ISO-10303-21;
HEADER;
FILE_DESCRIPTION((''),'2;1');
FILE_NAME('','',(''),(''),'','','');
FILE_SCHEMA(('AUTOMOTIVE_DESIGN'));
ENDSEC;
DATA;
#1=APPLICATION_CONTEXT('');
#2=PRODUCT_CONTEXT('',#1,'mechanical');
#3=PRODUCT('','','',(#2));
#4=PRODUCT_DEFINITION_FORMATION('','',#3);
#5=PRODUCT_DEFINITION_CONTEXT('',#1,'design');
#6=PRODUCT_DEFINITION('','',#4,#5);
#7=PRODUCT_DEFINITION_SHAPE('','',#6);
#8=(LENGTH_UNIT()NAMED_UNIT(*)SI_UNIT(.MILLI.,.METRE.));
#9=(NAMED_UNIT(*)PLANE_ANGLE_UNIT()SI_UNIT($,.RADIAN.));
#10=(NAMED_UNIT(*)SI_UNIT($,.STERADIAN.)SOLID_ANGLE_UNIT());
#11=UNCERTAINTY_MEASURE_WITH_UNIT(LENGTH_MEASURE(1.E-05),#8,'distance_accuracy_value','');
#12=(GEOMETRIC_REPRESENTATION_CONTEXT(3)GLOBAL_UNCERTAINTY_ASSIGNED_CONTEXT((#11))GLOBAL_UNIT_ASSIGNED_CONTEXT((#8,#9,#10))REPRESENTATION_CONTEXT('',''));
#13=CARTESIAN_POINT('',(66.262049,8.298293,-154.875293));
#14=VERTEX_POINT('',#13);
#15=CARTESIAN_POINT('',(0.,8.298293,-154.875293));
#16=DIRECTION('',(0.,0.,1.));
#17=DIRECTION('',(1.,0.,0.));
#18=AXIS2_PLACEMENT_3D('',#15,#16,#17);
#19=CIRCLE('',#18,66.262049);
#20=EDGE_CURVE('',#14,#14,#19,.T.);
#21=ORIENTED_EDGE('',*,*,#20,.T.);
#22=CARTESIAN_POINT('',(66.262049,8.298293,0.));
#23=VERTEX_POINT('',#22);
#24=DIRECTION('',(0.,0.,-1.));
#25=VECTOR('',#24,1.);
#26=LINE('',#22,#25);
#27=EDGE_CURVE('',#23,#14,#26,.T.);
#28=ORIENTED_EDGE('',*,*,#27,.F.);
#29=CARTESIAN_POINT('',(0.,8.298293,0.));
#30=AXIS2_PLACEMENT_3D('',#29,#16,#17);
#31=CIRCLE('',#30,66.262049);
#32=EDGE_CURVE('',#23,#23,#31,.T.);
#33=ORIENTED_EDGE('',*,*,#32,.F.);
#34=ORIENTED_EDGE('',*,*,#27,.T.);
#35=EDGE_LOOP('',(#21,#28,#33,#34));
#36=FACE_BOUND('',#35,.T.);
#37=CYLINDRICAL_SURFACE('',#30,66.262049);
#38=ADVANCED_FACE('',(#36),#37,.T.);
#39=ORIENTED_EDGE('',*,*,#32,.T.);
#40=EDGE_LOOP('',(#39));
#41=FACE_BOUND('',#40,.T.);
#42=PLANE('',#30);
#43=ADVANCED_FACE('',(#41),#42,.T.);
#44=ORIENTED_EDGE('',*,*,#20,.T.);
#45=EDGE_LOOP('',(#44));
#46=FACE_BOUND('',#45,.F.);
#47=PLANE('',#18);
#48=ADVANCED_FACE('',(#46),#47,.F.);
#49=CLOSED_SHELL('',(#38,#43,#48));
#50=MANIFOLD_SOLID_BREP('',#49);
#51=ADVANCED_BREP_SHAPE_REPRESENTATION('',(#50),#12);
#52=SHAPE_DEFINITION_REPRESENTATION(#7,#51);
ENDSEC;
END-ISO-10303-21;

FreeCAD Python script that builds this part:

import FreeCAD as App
import Part
import Sketcher
Q = App.Units.Quantity

doc = App.newDocument("Part")
params = doc.addObject("Spreadsheet::Sheet", "Params")
for row, (alias, value) in enumerate([
    ("pad1_length", "154.875293 mm"),
], start=1):
    params.set(f"A{row}", alias)
    params.set(f"B{row}", "=" + value)
    params.setAlias(f"B{row}", alias)

body = doc.addObject("PartDesign::Body", "Body")

# Sketch on XY plane
sketch1 = body.newObject("Sketcher::SketchObject", "Sketch")
sketch1.AttachmentSupport = (doc.getObject("XY_Plane"), [""])
sketch1.MapMode = "FlatFace"
sketch1.addGeometry(Part.Circle(App.Vector(0, 8, 0), App.Vector(0, 0, 1), 66), False)
sketch1.addConstraint([
    Sketcher.Constraint("PointOnObject", 0, 3, -2),
    Sketcher.Constraint("Diameter", 0, Q("132.524098 mm")),
    Sketcher.Constraint("DistanceY", -1, 1, 0, 3, Q("8.298293 mm")),
])
pad1 = body.newObject("PartDesign::Pad", "Pad")
pad1.Profile = sketch1
pad1.setExpression("Length", "Params.pad1_length")
pad1.Reversed = True

doc.recompute()
